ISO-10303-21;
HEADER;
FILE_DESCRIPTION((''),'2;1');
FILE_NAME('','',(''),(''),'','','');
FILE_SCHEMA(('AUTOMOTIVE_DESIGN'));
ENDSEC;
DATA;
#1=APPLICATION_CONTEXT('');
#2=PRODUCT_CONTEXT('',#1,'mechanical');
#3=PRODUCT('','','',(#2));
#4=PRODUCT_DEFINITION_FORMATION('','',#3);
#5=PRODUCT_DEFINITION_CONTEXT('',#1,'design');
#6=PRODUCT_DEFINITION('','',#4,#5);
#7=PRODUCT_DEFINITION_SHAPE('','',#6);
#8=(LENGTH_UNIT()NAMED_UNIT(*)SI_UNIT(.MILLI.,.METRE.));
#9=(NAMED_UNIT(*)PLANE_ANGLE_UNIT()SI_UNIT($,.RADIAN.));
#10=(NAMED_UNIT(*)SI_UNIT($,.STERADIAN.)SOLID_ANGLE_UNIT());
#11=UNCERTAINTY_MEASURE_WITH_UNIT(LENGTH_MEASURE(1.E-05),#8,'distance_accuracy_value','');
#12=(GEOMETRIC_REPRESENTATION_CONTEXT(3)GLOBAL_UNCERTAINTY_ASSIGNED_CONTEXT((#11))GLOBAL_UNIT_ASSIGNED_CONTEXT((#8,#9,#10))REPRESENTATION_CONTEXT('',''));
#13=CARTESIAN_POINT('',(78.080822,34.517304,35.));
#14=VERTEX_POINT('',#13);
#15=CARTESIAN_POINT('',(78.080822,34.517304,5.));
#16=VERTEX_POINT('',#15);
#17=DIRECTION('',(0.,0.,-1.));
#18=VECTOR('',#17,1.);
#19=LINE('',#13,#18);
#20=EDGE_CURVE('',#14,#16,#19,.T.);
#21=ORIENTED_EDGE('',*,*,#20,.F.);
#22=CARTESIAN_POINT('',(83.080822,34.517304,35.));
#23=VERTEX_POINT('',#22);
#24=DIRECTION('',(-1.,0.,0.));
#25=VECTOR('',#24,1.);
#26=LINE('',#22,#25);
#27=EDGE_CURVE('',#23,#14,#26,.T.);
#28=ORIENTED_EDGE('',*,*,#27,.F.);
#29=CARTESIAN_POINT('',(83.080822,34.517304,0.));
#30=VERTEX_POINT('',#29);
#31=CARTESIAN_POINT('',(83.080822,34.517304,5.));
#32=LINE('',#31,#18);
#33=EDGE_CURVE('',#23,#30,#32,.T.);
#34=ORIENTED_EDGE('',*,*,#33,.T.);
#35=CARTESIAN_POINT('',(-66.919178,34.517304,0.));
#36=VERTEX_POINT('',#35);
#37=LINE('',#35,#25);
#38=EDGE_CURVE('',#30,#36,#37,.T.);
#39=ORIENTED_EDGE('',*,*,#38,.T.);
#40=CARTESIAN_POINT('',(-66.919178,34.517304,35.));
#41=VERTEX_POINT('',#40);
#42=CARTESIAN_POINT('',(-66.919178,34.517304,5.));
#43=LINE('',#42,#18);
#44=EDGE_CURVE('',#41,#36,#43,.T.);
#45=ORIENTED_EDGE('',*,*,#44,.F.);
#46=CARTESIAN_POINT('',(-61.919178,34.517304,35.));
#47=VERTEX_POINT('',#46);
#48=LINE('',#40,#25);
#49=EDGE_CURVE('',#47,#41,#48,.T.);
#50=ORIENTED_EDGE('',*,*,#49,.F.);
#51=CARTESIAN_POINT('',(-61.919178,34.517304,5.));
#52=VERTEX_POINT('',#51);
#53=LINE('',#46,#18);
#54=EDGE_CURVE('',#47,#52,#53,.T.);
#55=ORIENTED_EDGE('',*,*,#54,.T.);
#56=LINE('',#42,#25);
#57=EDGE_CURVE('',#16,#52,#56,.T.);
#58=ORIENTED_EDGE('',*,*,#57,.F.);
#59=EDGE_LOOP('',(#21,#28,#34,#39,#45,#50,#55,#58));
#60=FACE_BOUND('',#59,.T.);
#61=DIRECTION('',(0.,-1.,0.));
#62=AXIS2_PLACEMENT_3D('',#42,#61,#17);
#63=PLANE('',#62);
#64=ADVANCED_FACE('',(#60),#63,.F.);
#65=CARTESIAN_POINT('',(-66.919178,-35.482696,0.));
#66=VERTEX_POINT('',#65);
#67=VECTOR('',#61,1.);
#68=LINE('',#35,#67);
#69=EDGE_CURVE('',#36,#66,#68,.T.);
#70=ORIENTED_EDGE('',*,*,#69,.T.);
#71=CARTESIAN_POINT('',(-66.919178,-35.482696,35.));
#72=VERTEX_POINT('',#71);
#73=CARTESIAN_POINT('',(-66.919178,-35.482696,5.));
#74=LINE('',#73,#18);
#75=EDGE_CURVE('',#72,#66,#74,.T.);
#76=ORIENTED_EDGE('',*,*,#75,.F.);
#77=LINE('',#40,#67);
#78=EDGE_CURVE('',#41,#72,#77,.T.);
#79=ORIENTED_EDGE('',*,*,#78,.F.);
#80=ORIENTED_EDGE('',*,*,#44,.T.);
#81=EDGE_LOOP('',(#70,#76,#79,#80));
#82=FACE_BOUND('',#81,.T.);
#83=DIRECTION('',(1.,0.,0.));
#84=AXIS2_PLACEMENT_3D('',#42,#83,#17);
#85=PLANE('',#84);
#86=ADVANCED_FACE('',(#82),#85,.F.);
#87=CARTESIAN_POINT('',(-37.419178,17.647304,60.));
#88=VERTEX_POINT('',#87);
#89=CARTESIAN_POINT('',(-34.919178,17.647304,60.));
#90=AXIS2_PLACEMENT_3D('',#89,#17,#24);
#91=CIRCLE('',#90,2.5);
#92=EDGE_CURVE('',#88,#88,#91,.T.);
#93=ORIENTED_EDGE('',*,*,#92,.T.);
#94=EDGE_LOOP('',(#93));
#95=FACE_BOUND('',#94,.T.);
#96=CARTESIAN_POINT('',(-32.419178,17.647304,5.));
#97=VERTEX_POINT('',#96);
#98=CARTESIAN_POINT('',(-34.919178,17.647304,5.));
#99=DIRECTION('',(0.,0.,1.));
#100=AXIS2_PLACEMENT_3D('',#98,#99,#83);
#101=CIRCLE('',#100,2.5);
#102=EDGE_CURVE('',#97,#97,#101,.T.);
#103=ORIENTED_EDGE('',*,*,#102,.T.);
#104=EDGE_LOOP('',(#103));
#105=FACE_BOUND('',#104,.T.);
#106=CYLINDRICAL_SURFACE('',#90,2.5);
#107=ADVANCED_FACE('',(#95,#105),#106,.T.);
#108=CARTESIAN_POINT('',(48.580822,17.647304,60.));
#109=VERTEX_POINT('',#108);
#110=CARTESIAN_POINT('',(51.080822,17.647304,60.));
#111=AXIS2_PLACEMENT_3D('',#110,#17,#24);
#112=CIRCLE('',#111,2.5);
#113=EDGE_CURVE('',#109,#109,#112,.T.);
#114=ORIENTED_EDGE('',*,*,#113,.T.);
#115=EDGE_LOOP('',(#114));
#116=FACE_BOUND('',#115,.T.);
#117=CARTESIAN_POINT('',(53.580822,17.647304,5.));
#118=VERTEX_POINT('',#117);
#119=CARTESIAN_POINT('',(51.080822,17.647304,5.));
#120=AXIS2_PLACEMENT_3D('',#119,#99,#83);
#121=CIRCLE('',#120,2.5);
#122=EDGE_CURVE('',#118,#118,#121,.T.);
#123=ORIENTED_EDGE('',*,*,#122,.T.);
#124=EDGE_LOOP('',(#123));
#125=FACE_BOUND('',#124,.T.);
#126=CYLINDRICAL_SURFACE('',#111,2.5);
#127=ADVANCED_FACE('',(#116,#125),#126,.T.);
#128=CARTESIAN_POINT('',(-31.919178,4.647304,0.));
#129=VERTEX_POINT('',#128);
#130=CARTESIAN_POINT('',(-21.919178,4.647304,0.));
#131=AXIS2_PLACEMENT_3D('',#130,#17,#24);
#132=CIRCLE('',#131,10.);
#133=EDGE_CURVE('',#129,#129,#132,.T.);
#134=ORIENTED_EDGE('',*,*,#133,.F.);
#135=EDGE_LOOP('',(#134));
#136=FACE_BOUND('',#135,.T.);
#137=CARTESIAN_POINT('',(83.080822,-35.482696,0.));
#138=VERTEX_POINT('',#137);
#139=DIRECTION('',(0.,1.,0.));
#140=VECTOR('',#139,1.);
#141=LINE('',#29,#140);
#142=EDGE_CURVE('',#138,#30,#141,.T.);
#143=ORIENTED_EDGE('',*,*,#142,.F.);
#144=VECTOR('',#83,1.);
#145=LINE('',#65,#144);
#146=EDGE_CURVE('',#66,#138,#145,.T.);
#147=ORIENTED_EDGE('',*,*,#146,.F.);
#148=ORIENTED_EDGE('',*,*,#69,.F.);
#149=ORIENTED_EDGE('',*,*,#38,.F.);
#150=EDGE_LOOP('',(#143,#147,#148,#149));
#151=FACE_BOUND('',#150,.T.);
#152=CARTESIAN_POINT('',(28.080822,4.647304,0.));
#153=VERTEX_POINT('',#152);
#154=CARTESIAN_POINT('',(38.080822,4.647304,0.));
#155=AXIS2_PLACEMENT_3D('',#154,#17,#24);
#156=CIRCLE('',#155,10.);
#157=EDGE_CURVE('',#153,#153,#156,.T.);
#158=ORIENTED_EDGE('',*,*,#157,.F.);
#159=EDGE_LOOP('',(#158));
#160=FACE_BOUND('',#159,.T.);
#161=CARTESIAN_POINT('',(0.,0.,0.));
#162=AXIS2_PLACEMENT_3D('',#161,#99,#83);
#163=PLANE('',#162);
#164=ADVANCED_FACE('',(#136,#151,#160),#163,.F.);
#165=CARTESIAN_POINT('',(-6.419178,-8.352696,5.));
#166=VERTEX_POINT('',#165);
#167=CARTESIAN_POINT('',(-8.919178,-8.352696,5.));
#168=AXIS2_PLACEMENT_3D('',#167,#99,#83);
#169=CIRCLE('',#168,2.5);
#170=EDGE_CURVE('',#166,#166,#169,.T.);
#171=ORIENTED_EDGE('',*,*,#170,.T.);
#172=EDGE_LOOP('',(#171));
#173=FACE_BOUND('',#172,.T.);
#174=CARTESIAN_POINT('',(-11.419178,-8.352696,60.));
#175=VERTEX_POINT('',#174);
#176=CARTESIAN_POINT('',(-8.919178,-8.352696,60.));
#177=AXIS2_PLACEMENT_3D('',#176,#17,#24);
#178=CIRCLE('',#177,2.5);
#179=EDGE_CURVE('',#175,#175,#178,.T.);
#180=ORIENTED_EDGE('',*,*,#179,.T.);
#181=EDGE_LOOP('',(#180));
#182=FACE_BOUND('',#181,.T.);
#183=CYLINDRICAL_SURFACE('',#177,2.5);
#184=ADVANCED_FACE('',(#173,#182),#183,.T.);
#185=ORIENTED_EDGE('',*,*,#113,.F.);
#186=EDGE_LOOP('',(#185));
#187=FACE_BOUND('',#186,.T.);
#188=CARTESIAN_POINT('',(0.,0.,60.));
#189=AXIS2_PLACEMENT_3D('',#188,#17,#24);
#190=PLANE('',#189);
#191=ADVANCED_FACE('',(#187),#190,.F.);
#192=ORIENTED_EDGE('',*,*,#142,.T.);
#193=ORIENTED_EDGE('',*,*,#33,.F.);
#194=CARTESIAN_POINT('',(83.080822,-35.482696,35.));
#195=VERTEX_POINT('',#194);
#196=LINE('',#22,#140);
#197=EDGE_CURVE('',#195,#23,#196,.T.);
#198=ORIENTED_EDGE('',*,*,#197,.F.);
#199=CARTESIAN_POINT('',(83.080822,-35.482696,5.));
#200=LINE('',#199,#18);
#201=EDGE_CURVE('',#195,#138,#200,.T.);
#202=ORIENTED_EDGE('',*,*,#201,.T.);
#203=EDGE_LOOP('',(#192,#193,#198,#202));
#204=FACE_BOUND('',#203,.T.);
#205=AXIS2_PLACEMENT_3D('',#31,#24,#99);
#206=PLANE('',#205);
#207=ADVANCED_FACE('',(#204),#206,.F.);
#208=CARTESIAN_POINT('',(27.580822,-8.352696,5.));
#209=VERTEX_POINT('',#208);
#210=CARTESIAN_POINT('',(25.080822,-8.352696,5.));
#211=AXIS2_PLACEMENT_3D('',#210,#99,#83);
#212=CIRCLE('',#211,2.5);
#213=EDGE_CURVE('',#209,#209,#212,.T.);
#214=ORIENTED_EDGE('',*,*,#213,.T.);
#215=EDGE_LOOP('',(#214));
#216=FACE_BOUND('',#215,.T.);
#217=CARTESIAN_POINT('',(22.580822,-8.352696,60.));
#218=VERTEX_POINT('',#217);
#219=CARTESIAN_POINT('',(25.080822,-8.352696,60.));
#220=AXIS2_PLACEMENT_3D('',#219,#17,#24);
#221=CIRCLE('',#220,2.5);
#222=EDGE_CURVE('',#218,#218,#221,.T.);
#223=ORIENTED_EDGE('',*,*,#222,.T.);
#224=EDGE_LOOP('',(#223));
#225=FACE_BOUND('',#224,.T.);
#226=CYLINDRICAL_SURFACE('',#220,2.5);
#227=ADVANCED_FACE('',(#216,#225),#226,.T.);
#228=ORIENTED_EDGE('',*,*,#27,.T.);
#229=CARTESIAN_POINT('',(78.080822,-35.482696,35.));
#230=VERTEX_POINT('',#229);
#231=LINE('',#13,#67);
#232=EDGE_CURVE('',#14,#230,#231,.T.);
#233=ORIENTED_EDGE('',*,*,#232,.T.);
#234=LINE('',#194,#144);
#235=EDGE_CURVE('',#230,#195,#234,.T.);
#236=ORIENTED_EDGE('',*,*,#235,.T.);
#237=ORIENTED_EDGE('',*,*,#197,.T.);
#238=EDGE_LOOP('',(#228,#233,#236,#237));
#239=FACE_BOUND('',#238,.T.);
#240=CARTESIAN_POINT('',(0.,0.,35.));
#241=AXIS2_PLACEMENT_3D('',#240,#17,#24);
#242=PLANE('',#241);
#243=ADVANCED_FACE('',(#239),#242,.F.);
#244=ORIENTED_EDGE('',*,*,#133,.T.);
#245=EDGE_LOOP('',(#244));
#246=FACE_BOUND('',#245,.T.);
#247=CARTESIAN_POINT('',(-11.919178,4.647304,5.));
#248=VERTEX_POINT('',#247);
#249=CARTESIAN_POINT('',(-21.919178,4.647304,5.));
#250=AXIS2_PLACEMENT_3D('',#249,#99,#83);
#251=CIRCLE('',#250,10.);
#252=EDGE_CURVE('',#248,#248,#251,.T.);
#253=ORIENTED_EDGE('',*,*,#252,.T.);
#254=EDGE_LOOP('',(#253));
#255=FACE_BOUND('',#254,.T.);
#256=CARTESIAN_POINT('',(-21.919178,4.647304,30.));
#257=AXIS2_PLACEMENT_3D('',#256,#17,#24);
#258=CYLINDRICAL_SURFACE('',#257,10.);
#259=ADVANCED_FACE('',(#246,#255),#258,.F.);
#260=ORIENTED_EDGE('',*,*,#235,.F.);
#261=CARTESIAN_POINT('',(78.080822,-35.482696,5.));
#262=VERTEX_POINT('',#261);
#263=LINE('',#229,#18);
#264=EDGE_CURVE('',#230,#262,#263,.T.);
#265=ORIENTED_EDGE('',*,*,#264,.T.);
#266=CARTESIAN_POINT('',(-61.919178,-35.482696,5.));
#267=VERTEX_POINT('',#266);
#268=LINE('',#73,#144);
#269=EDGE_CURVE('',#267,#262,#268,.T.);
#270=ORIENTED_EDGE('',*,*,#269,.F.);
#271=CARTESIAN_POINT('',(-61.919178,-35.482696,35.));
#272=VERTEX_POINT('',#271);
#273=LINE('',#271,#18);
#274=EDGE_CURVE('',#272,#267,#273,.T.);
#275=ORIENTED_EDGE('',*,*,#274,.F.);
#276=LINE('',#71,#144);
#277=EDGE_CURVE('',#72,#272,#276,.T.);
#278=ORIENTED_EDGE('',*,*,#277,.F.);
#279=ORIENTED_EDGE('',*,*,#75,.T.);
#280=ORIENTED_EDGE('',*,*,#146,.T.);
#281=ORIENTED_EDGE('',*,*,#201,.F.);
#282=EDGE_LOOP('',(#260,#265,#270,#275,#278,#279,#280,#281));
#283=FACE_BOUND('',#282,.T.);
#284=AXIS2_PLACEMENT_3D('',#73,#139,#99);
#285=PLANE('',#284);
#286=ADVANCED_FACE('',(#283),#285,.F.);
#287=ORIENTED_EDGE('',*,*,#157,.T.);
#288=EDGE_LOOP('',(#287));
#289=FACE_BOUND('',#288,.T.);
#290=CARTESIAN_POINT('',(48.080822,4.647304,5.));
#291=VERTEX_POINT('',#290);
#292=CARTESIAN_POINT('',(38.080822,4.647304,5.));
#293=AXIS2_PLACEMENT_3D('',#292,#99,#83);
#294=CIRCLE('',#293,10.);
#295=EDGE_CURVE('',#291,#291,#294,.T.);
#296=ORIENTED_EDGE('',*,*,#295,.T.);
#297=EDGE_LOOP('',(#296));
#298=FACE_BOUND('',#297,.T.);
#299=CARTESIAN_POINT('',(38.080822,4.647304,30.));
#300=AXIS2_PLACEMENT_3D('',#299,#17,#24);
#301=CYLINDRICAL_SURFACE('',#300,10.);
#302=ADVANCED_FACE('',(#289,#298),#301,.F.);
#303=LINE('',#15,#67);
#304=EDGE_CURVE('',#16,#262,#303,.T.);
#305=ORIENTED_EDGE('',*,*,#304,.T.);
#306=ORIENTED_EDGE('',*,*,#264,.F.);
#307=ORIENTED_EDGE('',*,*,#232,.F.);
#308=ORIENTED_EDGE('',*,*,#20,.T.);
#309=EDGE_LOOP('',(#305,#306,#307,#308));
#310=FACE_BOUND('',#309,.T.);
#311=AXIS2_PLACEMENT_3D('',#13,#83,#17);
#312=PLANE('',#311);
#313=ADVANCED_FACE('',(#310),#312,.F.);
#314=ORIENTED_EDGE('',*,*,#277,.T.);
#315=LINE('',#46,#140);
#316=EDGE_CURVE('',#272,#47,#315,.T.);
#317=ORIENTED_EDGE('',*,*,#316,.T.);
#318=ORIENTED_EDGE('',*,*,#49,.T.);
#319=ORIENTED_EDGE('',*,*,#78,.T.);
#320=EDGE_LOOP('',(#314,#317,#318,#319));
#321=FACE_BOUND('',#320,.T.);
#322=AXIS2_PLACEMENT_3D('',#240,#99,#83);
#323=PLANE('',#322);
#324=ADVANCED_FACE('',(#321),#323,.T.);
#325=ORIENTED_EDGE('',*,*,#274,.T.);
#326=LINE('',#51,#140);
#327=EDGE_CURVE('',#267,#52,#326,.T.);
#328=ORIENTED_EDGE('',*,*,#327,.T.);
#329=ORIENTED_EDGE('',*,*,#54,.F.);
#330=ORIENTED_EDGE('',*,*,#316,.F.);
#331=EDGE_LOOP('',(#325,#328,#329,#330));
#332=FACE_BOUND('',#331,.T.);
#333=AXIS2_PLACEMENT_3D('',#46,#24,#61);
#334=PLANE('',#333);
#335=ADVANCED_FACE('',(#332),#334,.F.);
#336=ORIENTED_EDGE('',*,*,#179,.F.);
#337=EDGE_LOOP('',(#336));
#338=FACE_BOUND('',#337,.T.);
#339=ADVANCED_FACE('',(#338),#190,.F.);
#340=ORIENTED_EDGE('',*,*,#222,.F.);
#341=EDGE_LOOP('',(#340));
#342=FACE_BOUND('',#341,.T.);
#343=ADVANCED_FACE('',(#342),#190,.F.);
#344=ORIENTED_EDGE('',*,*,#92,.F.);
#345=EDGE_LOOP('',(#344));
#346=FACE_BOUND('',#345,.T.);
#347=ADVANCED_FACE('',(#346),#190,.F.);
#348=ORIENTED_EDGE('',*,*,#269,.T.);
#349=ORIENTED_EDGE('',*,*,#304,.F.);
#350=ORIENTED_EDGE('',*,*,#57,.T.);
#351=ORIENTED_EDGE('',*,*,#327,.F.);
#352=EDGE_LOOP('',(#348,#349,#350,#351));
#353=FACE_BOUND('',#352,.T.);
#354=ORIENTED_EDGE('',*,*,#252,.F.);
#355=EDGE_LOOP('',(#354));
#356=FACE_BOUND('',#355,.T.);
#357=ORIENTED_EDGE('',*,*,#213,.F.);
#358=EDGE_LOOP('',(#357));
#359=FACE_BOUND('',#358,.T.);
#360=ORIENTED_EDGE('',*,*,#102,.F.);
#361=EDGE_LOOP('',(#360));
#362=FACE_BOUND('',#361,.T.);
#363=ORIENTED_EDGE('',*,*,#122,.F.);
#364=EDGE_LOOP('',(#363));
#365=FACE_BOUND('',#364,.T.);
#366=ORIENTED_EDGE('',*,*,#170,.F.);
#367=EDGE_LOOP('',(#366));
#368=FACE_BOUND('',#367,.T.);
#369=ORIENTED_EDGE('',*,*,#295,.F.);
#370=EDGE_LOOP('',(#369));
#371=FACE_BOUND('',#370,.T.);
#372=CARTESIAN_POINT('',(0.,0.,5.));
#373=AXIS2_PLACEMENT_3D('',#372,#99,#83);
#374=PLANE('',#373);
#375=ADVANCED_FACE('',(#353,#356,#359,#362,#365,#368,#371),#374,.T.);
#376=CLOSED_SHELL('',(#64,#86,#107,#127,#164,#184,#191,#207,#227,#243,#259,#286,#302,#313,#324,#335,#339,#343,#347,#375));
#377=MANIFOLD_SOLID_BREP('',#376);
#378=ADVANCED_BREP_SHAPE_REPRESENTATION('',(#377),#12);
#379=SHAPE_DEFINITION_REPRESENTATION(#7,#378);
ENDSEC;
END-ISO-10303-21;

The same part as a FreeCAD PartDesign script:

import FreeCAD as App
import Part
import Sketcher
from FreeCAD import Vector
Q = App.Units.Quantity

doc = App.newDocument("Part")
body = doc.addObject("PartDesign::Body", "Body")

# Sketch on XY plane
sketch1 = body.newObject("Sketcher::SketchObject", "Sketch")
sketch1.AttachmentSupport = (doc.getObject("XY_Plane"), [""])
sketch1.MapMode = "FlatFace"
sketch1.addGeometry([
    Part.LineSegment(Vector(-67, 35, 0), Vector(-67, -35, 0)),
    Part.LineSegment(Vector(-67, -35, 0), Vector(83, -35, 0)),
    Part.LineSegment(Vector(83, -35, 0), Vector(83, 35, 0)),
    Part.LineSegment(Vector(83, 35, 0), Vector(-67, 35, 0)),
], False)
sketch1.addConstraint([
    Sketcher.Constraint("Coincident", 0, 2, 1, 1),
    Sketcher.Constraint("Coincident", 1, 2, 2, 1),
    Sketcher.Constraint("Coincident", 2, 2, 3, 1),
    Sketcher.Constraint("Coincident", 3, 2, 0, 1),
    Sketcher.Constraint("Vertical", 0),
    Sketcher.Constraint("Horizontal", 1),
    Sketcher.Constraint("Vertical", 2),
    Sketcher.Constraint("Horizontal", 3),
    Sketcher.Constraint("DistanceX", 1, 1, 1, 2, Q("150 mm")),
    Sketcher.Constraint("DistanceY", 0, 2, 0, 1, Q("70 mm")),
    Sketcher.Constraint("DistanceX", 0, 2, -1, 1, Q("66.919178 mm")),
    Sketcher.Constraint("DistanceY", 0, 2, -1, 1, Q("35.482696 mm")),
])
pad1 = body.newObject("PartDesign::Pad", "Pad")
pad1.Profile = sketch1
pad1.Length = 5

# Sketch on XY plane
sketch2 = body.newObject("Sketcher::SketchObject", "Sketch001")
sketch2.AttachmentSupport = (doc.getObject("XY_Plane"), [""])
sketch2.MapMode = "FlatFace"
sketch2.AttachmentOffset = App.Placement(Vector(0, 0, 5), App.Rotation())
sketch2.addGeometry([
    Part.LineSegment(Vector(-67, 35, 0), Vector(-67, -35, 0)),  # 0
    Part.LineSegment(Vector(-67, -35, 0), Vector(-62, -35, 0)),  # 1
    Part.LineSegment(Vector(-62, -35, 0), Vector(-62, 35, 0)),  # 2
    Part.LineSegment(Vector(-62, 35, 0), Vector(-67, 35, 0)),  # 3
    Part.LineSegment(Vector(78, 35, 0), Vector(78, -35, 0)),  # 4
    Part.LineSegment(Vector(78, -35, 0), Vector(83, -35, 0)),  # 5
    Part.LineSegment(Vector(83, -35, 0), Vector(83, 35, 0)),  # 6
    Part.LineSegment(Vector(83, 35, 0), Vector(78, 35, 0)),  # 7
], False)
sketch2.addConstraint([
    Sketcher.Constraint("Coincident", 0, 2, 1, 1),
    Sketcher.Constraint("Coincident", 1, 2, 2, 1),
    Sketcher.Constraint("Coincident", 2, 2, 3, 1),
    Sketcher.Constraint("Coincident", 3, 2, 0, 1),
    Sketcher.Constraint("Coincident", 4, 2, 5, 1),
    Sketcher.Constraint("Coincident", 5, 2, 6, 1),
    Sketcher.Constraint("Coincident", 6, 2, 7, 1),
    Sketcher.Constraint("Coincident", 7, 2, 4, 1),
    Sketcher.Constraint("Vertical", 0),
    Sketcher.Constraint("Horizontal", 1),
    Sketcher.Constraint("Vertical", 2),
    Sketcher.Constraint("Horizontal", 3),
    Sketcher.Constraint("Vertical", 4),
    Sketcher.Constraint("Horizontal", 5),
    Sketcher.Constraint("Vertical", 6),
    Sketcher.Constraint("Horizontal", 7),
    Sketcher.Constraint("Horizontal", 1, 2, 4, 2),
    Sketcher.Constraint("Horizontal", 3, 2, 6, 2),
    Sketcher.Constraint("Equal", 3, 5),
    Sketcher.Constraint("DistanceX", 1, 1, 1, 2, Q("5 mm")),
    Sketcher.Constraint("DistanceY", 0, 2, 0, 1, Q("70 mm")),
    Sketcher.Constraint("DistanceX", 1, 2, 4, 2, Q("140 mm")),
    Sketcher.Constraint("DistanceX", 0, 2, -1, 1, Q("66.919178 mm")),
    Sketcher.Constraint("DistanceY", 0, 2, -1, 1, Q("35.482696 mm")),
])
pad2 = body.newObject("PartDesign::Pad", "Pad001")
pad2.Profile = sketch2
pad2.Length = 30

# Sketch on XY plane
sketch3 = body.newObject("Sketcher::SketchObject", "Sketch002")
sketch3.AttachmentSupport = (doc.getObject("XY_Plane"), [""])
sketch3.MapMode = "FlatFace"
sketch3.addGeometry([
    Part.Circle(Vector(-22, 5, 0), Vector(0, 0, 1), 10),
    Part.Circle(Vector(38, 5, 0), Vector(0, 0, 1), 10),
], False)
sketch3.addConstraint([
    Sketcher.Constraint("Equal", 0, 1),
    Sketcher.Constraint("Horizontal", 0, 3, 1, 3),
    Sketcher.Constraint("Diameter", 0, Q("20 mm")),
    Sketcher.Constraint("DistanceX", 0, 3, 1, 3, Q("60 mm")),
    Sketcher.Constraint("DistanceX", 0, 3, -1, 1, Q("21.919178 mm")),
    Sketcher.Constraint("DistanceY", -1, 1, 0, 3, Q("4.647304 mm")),
])
pocket1 = body.newObject("PartDesign::Pocket", "Pocket")
pocket1.Profile = sketch3
pocket1.Length = 30
pocket1.Reversed = True

# Sketch on XY plane
sketch4 = body.newObject("Sketcher::SketchObject", "Sketch003")
sketch4.AttachmentSupport = (doc.getObject("XY_Plane"), [""])
sketch4.MapMode = "FlatFace"
sketch4.addGeometry([
    Part.Circle(Vector(-34.9, 17.6, 0), Vector(0, 0, 1), 2.5),
    Part.Circle(Vector(-8.9, -8.4, 0), Vector(0, 0, 1), 2.5),
    Part.Circle(Vector(51.1, 17.6, 0), Vector(0, 0, 1), 2.5),
    Part.Circle(Vector(25.1, -8.4, 0), Vector(0, 0, 1), 2.5),
], False)
sketch4.addConstraint([
    Sketcher.Constraint("Equal", 0, 1),
    Sketcher.Constraint("Equal", 1, 2),
    Sketcher.Constraint("Equal", 2, 3),
    Sketcher.Constraint("Horizontal", 0, 3, 2, 3),
    Sketcher.Constraint("Horizontal", 1, 3, 3, 3),
    Sketcher.Constraint("Diameter", 0, Q("5 mm")),
    Sketcher.Constraint("DistanceX", 0, 3, 1, 3, Q("26 mm")),
    Sketcher.Constraint("DistanceY", 1, 3, 0, 3, Q("26 mm")),
    Sketcher.Constraint("DistanceX", 1, 3, 2, 3, Q("60 mm")),
    Sketcher.Constraint("DistanceX", 1, 3, 3, 3, Q("34 mm")),
    Sketcher.Constraint("DistanceX", 0, 3, -1, 1, Q("34.919178 mm")),
    Sketcher.Constraint("DistanceY", -1, 1, 0, 3, Q("17.647304 mm")),
])
pad3 = body.newObject("PartDesign::Pad", "Pad002")
pad3.Profile = sketch4
pad3.Length = 60

doc.recompute()
